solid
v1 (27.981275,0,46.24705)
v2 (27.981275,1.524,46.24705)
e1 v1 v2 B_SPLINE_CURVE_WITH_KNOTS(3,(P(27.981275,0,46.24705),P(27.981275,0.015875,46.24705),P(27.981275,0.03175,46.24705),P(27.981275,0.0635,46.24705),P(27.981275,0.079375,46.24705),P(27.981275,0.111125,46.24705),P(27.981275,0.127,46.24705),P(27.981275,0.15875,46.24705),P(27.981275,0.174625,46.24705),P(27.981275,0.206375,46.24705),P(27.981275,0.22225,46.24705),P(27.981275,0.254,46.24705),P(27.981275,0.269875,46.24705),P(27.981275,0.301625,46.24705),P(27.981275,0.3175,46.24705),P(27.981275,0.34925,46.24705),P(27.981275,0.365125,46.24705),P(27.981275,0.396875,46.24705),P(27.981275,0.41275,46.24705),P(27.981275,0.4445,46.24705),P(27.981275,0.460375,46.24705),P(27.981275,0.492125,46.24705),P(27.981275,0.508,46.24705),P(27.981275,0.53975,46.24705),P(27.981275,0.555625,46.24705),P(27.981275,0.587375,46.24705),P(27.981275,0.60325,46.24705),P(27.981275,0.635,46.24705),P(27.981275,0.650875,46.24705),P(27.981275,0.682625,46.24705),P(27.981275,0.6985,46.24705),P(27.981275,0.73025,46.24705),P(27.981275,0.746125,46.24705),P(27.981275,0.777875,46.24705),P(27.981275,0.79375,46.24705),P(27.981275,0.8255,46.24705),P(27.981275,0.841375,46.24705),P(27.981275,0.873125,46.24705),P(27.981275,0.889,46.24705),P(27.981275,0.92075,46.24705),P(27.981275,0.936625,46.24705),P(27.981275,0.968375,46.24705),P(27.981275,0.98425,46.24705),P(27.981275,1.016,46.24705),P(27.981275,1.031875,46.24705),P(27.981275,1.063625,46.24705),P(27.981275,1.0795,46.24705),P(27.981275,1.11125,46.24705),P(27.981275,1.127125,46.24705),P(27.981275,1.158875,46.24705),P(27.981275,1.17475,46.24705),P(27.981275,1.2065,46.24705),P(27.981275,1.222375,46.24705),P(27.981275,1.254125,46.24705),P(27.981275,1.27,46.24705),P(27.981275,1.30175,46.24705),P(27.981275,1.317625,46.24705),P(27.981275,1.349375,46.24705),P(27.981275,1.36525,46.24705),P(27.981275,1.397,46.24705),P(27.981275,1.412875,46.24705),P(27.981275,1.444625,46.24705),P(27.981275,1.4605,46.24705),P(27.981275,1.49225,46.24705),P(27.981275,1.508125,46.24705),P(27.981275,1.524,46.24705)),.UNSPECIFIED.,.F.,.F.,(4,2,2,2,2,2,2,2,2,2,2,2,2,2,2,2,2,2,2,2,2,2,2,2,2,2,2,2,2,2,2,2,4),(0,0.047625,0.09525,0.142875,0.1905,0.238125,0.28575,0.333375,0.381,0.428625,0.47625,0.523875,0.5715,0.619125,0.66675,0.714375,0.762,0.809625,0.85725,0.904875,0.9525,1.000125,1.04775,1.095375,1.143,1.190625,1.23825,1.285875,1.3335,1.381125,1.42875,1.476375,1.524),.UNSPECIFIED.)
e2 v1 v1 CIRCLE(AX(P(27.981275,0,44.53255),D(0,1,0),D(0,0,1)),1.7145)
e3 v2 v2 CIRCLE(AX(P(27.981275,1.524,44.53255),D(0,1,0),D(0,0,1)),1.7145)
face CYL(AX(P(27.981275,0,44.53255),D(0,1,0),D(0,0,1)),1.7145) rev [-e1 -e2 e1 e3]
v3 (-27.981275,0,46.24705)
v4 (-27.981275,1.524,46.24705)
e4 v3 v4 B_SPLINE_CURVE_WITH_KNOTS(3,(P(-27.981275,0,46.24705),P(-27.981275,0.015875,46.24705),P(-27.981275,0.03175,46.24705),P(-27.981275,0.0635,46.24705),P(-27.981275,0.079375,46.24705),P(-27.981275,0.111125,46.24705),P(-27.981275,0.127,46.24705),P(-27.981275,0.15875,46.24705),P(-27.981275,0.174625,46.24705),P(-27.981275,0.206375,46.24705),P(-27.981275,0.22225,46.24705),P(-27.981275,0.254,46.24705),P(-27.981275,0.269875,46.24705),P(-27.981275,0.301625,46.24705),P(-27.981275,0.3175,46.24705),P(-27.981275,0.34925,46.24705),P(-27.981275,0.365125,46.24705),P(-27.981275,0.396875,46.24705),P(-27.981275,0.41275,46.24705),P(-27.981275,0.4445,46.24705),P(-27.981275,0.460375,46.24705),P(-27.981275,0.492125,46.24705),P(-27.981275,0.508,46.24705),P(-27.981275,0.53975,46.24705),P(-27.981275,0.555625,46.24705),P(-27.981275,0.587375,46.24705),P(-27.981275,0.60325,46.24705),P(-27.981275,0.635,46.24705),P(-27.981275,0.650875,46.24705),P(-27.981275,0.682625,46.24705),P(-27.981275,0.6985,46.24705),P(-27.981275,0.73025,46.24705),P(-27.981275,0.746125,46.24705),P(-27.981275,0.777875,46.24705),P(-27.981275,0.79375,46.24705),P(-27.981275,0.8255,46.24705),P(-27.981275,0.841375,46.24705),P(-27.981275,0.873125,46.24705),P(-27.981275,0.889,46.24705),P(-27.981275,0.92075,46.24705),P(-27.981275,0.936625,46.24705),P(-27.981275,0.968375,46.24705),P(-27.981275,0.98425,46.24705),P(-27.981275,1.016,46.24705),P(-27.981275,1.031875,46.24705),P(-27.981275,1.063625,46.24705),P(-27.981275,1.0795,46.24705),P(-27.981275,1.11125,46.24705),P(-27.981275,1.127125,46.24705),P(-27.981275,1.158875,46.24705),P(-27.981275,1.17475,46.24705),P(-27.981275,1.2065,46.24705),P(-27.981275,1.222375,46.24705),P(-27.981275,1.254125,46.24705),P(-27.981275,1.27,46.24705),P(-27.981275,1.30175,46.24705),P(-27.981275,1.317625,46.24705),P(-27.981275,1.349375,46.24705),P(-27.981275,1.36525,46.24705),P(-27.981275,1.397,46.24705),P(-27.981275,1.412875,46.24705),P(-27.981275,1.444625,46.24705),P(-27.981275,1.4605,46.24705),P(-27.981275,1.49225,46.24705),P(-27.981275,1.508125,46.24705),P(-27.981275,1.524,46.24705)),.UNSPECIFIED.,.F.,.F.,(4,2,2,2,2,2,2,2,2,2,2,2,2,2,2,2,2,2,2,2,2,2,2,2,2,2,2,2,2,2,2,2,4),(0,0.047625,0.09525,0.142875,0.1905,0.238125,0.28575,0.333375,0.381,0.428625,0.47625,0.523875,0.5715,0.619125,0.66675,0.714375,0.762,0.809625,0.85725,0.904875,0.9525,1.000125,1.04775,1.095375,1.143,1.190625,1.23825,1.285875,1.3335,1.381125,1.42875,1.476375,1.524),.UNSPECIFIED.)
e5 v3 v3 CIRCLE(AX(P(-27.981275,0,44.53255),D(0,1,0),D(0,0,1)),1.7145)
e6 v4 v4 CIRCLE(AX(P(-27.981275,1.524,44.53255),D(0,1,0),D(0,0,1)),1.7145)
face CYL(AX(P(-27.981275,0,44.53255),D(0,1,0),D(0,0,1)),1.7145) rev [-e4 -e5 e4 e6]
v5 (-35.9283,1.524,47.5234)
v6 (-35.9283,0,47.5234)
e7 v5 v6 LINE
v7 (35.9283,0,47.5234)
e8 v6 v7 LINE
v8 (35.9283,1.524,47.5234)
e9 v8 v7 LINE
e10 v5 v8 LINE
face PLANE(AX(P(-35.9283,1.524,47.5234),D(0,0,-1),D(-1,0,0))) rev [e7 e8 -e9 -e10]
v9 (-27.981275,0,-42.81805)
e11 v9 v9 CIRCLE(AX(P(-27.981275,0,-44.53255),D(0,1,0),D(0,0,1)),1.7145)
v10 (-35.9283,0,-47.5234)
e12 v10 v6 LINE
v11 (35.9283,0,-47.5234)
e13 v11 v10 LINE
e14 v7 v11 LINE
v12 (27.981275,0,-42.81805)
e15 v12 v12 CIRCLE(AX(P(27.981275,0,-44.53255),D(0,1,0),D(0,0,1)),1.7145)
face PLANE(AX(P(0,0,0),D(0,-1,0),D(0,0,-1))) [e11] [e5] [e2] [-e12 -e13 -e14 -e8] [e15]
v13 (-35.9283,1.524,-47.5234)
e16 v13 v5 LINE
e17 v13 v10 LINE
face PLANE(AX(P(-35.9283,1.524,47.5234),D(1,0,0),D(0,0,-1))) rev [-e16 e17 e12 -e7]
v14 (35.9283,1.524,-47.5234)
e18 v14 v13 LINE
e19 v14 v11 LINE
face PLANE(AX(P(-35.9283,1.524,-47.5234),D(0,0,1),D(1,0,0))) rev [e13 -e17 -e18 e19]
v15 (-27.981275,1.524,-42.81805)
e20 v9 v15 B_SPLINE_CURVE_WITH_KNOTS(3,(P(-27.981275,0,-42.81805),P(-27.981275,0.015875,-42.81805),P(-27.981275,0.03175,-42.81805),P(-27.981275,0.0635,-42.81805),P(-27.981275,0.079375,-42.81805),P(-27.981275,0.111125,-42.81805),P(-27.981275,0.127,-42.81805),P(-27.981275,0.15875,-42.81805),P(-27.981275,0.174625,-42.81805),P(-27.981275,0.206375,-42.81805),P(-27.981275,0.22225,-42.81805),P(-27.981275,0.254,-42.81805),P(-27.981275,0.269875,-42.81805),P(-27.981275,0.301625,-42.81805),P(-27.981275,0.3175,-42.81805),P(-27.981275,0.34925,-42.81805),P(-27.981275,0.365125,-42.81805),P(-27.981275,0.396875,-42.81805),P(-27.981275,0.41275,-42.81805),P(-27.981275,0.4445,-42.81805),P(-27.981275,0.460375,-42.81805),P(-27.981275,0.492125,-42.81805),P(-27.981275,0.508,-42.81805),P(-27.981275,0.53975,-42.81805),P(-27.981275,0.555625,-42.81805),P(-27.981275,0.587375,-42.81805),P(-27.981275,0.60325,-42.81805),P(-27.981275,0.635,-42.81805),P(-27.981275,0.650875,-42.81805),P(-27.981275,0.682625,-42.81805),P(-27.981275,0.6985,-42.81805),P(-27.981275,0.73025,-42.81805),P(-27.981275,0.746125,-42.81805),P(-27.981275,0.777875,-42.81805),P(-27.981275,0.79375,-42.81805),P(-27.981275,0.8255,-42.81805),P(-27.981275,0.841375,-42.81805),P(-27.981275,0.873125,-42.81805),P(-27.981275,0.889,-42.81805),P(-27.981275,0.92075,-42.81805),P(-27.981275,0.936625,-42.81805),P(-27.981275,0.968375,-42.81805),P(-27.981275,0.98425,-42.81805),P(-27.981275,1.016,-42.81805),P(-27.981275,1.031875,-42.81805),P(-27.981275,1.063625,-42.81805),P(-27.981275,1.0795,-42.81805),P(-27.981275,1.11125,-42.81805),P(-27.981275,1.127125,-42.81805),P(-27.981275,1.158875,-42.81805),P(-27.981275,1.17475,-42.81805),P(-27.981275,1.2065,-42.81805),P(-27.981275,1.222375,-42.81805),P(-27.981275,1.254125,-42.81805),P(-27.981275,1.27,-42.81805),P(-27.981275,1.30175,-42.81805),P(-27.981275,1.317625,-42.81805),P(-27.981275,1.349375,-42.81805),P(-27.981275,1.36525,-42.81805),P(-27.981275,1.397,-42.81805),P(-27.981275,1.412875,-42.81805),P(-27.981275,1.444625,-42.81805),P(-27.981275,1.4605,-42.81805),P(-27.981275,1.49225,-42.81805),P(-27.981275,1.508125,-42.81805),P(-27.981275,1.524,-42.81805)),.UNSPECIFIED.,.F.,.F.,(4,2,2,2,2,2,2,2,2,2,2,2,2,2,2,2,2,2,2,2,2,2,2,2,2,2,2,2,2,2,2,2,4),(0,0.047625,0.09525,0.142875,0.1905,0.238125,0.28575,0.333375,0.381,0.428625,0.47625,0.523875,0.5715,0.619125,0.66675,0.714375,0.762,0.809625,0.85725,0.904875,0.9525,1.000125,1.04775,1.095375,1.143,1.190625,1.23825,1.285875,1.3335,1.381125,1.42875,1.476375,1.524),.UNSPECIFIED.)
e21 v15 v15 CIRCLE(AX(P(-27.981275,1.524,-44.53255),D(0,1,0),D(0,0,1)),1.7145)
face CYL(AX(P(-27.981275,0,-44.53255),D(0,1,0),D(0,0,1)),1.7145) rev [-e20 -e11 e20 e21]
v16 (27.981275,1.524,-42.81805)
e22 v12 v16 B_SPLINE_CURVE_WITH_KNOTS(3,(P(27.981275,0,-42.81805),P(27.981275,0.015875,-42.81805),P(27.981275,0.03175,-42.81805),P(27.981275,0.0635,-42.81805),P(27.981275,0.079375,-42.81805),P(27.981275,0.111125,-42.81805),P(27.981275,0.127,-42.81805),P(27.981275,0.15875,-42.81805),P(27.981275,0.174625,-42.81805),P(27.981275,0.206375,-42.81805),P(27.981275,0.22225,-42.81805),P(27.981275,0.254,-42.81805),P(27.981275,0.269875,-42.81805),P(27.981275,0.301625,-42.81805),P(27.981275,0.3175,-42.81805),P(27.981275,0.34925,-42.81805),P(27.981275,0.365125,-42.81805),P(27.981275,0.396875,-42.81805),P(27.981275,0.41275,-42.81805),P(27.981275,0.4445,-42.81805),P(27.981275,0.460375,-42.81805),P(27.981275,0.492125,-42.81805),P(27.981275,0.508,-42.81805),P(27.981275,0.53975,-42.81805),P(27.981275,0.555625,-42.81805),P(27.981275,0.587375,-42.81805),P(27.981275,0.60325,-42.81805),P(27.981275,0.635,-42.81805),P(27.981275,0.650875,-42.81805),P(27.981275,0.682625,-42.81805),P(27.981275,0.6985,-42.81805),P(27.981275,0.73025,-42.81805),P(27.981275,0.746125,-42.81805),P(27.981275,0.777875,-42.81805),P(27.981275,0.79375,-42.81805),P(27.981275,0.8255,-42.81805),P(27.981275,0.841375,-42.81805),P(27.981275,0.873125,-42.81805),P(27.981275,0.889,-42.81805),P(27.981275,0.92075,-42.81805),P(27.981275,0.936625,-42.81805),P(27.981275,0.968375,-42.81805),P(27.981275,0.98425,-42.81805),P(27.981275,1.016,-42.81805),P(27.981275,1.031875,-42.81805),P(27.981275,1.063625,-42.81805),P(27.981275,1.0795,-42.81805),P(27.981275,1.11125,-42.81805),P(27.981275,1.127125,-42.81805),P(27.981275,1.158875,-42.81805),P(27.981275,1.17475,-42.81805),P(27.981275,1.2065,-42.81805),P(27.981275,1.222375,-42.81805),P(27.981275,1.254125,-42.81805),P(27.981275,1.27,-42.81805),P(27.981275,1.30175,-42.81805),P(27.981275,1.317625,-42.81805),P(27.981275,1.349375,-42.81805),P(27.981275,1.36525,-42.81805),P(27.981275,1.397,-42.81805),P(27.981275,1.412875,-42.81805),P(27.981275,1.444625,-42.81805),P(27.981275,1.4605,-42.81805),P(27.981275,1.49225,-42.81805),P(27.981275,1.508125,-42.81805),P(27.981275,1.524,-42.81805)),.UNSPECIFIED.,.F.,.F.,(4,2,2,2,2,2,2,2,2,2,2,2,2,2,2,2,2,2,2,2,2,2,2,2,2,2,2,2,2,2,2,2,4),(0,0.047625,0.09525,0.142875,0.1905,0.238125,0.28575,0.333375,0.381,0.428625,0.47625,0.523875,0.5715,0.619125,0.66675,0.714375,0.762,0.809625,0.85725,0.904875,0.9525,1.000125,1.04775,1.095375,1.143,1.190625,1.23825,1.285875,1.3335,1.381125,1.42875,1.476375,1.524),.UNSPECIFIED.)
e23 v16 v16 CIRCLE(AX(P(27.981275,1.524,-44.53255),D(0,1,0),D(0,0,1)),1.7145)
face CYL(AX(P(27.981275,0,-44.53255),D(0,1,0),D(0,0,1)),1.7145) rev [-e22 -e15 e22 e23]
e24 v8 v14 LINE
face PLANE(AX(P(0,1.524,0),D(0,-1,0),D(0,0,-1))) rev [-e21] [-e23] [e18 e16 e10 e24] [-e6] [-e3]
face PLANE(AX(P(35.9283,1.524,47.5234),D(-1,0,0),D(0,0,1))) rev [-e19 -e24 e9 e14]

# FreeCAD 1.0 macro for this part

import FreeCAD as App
import Part
import Sketcher

V = App.Vector
Q = App.Units.Quantity


def add_polygon(sketch, points):
    """Adds a closed chain of lines whose ends are joined by coincident constraints."""
    first, n = sketch.GeometryCount, len(points)
    for a, b in zip(points, points[1:] + points[:1]):
        sketch.addGeometry(Part.LineSegment(App.Vector(*a, 0), App.Vector(*b, 0)), False)
    for i in range(n):
        sketch.addConstraint(Sketcher.Constraint("Coincident", first + i, 2, first + (i + 1) % n, 1))

doc = App.newDocument("Part")
body = doc.addObject("PartDesign::Body", "Body")

sketch1 = doc.addObject("Sketcher::SketchObject", "Sketch")
body.addObject(sketch1)
sketch1.AttachmentSupport = (doc.XZ_Plane, [""])
sketch1.MapMode = "FlatFace"
add_polygon(sketch1, [(-36, -48), (-36, 48), (36, 48), (36, -48)])
sketch1.addConstraint([
    Sketcher.Constraint("Vertical", 0),
    Sketcher.Constraint("Horizontal", 1),
    Sketcher.Constraint("Vertical", 2),
    Sketcher.Constraint("Horizontal", 3),
    Sketcher.Constraint("Symmetric", 0, 2, 2, 2, -1, 1),
    Sketcher.Constraint("DistanceX", 1, 1, 1, 2, Q("2.829 in")),
    Sketcher.Constraint("DistanceY", 0, 1, 0, 2, Q("3.742 in")),
])
pad1 = doc.addObject("PartDesign::Pad", "Pad")
body.addObject(pad1)
pad1.Profile = sketch1
pad1.Length = Q("0.06 in")
pad1.Reversed = True

sketch2 = doc.addObject("Sketcher::SketchObject", "Sketch001")
body.addObject(sketch2)
sketch2.AttachmentSupport = (doc.XZ_Plane, [""])
sketch2.MapMode = "FlatFace"
sketch2.AttachmentOffset = App.Placement(V(0, 0, -0.06 * 25.4), App.Rotation())
sketch2.addGeometry([
    Part.Circle(V(-28, -44.5, 0), V(0, 0, 1), 1.7),
    Part.Circle(V(28, -44.5, 0), V(0, 0, 1), 1.7),
    Part.Circle(V(28, 44.5, 0), V(0, 0, 1), 1.7),
    Part.Circle(V(-28, 44.5, 0), V(0, 0, 1), 1.7),
], False)
sketch2.addConstraint([
    Sketcher.Constraint("Equal", 0, 1),
    Sketcher.Constraint("Equal", 1, 2),
    Sketcher.Constraint("Equal", 2, 3),
    Sketcher.Constraint("Symmetric", 0, 3, 2, 3, -1, 1),
    Sketcher.Constraint("Symmetric", 1, 3, 3, 3, -1, 1),
    Sketcher.Constraint("Symmetric", 0, 3, 1, 3, -2),
    Sketcher.Constraint("Diameter", 0, Q("0.135 in")),
    Sketcher.Constraint("DistanceY", 1, 3, 2, 3, Q("3.5065 in")),
    Sketcher.Constraint("DistanceX", 0, 3, 1, 3, Q("55.96255 mm")),
])
pocket1 = doc.addObject("PartDesign::Pocket", "Pocket")
body.addObject(pocket1)
pocket1.Profile = sketch2
pocket1.Type = "ThroughAll"
pocket1.Reversed = True

doc.recompute()
